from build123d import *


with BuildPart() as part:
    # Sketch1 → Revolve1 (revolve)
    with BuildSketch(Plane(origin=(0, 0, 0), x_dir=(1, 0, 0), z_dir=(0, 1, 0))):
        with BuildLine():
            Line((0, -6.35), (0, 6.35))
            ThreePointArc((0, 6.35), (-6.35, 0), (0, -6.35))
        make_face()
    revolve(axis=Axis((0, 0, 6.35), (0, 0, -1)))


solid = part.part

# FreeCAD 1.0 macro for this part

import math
import FreeCAD as App
import Part
import Sketcher

V = App.Vector
Q = App.Units.Quantity

doc = App.newDocument("Part")
body = doc.addObject("PartDesign::Body", "Body")

# Sketch on XZ plane
sketch1 = body.newObject("Sketcher::SketchObject", "Sketch")
sketch1.AttachmentSupport = (doc.getObject("XZ_Plane"), [""])
sketch1.MapMode = "FlatFace"
sketch1.addGeometry([
    Part.LineSegment(V(0, 6, 0), V(0, -6, 0)),
    Part.ArcOfCircle(Part.Circle(V(0, 0, 0), V(0, 0, 1), 6), math.radians(90), math.radians(270)),
], False)
sketch1.addConstraint([
    Sketcher.Constraint("Coincident", 0, 1, 1, 1),
    Sketcher.Constraint("Coincident", 1, 2, 0, 2),
    Sketcher.Constraint("Vertical", 0),
    Sketcher.Constraint("Coincident", 1, 3, -1, 1),
    Sketcher.Constraint("PointOnObject", 0, 1, -2),
    Sketcher.Constraint("Radius", 1, Q("0.25 in")),
])
revolution = body.newObject("PartDesign::Revolution", "Revolution")
revolution.Profile = sketch1
revolution.ReferenceAxis = (sketch1, ["V_Axis"])
revolution.Angle = 360

doc.recompute()
